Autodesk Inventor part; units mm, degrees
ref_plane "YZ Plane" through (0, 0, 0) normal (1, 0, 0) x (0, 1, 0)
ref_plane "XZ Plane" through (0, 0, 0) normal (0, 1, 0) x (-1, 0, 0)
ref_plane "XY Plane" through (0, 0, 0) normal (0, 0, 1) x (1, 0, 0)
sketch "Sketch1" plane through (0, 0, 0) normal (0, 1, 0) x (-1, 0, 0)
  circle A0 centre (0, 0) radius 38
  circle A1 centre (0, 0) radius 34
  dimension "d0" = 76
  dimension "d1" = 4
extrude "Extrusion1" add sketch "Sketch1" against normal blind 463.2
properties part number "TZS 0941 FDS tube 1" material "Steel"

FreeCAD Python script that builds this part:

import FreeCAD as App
import Part
import Sketcher
from FreeCAD import Vector
Q = App.Units.Quantity

doc = App.newDocument("Part")
body = doc.addObject("PartDesign::Body", "Body")

# Sketch on XZ plane
sketch1 = body.newObject("Sketcher::SketchObject", "Sketch")
sketch1.AttachmentSupport = (doc.getObject("XZ_Plane"), [""])
sketch1.MapMode = "FlatFace"
sketch1.addGeometry([
    Part.Circle(Vector(0, 0, 0), Vector(0, 0, 1), 38),
    Part.Circle(Vector(0, 0, 0), Vector(0, 0, 1), 34),
], False)
sketch1.addConstraint([
    Sketcher.Constraint("Coincident", 0, 3, -1, 1),
    Sketcher.Constraint("Coincident", 1, 3, -1, 1),
    Sketcher.Constraint("Diameter", 0, Q("76 mm")),
    Sketcher.Constraint("Diameter", 1, Q("68 mm")),
])
pad1 = body.newObject("PartDesign::Pad", "Pad")
pad1.Profile = sketch1
pad1.Length = 463.2

doc.recompute()
